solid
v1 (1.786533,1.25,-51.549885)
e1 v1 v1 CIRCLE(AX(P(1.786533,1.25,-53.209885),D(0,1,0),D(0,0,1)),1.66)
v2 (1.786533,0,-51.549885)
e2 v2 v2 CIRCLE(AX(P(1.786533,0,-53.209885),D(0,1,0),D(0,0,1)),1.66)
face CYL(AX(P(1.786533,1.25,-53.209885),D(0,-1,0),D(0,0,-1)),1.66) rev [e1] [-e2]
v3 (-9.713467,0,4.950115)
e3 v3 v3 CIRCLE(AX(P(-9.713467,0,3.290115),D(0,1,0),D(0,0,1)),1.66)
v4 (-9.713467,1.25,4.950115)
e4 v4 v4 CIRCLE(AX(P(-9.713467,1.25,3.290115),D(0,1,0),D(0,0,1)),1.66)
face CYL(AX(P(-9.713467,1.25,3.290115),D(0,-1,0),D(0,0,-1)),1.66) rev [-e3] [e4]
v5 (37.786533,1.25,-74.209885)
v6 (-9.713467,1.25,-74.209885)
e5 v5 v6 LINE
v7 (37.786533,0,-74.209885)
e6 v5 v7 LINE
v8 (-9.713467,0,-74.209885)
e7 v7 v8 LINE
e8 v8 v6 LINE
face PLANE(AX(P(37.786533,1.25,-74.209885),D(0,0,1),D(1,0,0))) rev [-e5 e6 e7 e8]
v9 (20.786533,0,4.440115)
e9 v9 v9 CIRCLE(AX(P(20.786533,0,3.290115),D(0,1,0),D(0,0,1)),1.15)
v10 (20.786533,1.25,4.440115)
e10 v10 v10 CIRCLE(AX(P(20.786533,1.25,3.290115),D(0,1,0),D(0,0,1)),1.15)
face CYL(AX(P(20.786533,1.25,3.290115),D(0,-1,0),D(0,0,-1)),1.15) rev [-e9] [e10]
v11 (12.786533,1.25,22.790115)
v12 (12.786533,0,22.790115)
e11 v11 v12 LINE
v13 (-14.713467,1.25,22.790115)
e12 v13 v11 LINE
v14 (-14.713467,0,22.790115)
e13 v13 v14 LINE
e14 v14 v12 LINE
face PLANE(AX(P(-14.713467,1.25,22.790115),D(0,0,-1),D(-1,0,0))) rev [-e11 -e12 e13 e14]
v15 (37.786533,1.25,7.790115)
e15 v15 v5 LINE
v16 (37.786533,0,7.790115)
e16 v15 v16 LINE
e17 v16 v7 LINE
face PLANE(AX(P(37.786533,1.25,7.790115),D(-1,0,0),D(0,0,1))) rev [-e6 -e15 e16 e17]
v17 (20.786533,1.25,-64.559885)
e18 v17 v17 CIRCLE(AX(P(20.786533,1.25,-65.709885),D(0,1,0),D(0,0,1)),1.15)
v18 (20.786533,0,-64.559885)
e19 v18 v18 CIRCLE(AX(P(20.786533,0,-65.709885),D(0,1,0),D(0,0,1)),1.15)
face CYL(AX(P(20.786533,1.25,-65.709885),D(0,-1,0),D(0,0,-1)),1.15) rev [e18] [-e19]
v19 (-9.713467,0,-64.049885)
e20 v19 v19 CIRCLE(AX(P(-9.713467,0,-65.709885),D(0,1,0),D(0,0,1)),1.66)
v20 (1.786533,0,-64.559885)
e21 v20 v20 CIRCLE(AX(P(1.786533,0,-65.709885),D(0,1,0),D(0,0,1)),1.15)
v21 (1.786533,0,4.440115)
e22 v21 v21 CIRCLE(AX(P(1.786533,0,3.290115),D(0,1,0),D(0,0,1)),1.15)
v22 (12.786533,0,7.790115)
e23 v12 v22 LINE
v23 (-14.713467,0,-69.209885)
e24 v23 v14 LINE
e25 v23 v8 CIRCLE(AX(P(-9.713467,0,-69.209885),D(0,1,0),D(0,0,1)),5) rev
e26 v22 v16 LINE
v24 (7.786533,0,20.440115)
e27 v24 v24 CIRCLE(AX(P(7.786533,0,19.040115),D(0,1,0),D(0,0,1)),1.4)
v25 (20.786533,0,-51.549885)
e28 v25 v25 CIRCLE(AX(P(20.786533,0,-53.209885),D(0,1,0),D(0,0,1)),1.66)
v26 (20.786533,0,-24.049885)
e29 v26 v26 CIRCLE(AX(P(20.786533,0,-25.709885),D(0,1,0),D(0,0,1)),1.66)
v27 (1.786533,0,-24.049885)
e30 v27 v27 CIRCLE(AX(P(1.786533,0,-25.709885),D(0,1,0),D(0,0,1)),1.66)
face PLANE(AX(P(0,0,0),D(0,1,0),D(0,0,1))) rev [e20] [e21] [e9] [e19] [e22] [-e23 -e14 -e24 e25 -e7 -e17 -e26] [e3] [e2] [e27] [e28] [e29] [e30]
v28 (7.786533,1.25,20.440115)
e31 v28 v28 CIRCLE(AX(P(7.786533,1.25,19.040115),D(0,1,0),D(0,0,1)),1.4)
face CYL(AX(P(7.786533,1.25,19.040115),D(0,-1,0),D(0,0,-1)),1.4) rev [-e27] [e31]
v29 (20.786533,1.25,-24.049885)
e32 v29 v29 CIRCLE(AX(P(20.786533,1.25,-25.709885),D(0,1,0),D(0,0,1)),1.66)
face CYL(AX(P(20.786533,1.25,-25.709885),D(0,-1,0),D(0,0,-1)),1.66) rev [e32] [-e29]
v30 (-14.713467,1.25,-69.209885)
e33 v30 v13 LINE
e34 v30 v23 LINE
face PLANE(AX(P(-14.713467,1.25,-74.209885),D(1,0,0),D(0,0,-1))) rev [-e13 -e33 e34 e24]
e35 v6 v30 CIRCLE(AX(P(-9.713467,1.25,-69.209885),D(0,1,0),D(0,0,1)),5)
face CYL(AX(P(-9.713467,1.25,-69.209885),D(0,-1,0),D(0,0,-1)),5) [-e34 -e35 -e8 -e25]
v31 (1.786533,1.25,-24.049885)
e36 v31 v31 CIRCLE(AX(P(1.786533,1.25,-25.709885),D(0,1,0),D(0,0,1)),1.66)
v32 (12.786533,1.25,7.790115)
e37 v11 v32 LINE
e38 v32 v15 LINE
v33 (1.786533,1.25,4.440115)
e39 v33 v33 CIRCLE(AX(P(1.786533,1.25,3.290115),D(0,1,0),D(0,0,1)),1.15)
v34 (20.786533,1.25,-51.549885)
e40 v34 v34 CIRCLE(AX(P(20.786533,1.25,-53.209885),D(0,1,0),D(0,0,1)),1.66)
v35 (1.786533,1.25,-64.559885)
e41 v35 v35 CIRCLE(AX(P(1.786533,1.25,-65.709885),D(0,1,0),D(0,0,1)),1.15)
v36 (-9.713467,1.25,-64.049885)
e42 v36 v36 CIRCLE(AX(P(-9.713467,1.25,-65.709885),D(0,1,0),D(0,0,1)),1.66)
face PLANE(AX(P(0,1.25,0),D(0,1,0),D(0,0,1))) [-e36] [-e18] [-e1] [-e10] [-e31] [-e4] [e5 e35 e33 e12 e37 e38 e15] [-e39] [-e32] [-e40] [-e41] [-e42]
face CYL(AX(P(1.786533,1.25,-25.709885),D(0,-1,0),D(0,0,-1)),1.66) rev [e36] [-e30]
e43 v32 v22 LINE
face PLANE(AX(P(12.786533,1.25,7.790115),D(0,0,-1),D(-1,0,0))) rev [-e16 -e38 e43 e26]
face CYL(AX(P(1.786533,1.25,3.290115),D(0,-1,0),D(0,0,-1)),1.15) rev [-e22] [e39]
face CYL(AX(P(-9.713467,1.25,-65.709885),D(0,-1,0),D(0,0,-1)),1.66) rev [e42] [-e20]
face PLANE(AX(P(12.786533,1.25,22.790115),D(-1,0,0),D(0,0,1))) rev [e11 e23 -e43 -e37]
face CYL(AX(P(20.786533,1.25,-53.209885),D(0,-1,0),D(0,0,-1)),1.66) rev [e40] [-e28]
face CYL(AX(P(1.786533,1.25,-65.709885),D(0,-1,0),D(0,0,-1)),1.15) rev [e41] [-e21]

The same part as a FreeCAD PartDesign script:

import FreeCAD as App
import Part
import Sketcher

V = App.Vector
Q = App.Units.Quantity


def edges_at(feature, points):
    """Names of the edges that pass closest to the given points."""
    edges = feature.Shape.Edges
    near = lambda p: min(range(len(edges)), key=lambda i: edges[i].distToShape(Part.Vertex(*p))[0])
    return sorted({f"Edge{near(p) + 1}" for p in points})


def add_polygon(sketch, points):
    """Adds a closed chain of lines whose ends are joined by coincident constraints."""
    first, n = sketch.GeometryCount, len(points)
    for a, b in zip(points, points[1:] + points[:1]):
        sketch.addGeometry(Part.LineSegment(App.Vector(*a, 0), App.Vector(*b, 0)), False)
    for i in range(n):
        sketch.addConstraint(Sketcher.Constraint("Coincident", first + i, 2, first + (i + 1) % n, 1))

doc = App.newDocument("Part")
body = doc.addObject("PartDesign::Body", "Body")

# Sketch on XZ plane
sketch1 = doc.addObject("Sketcher::SketchObject", "Sketch")
body.addObject(sketch1)
sketch1.AttachmentSupport = (doc.XZ_Plane, [""])
sketch1.MapMode = "FlatFace"
add_polygon(sketch1, [(-14.7, -74.2), (-14.7, 22.8), (12.8, 22.8), (12.8, 7.8), (37.8, 7.8), (37.8, -74.2)])  # lines 0-5
sketch1.addGeometry(Part.Circle(V(-9.7, 3.3, 0), V(0, 0, 1), 1.7), False)  # 6
sketch1.addGeometry(Part.Circle(V(1.8, 3.3, 0), V(0, 0, 1), 1.1), False)  # 7
sketch1.addGeometry(Part.Circle(V(7.8, 19, 0), V(0, 0, 1), 1.4), False)  # 8
sketch1.addGeometry(Part.Circle(V(20.8, 3.3, 0), V(0, 0, 1), 1.1), False)  # 9
sketch1.addGeometry(Part.Circle(V(1.8, -25.7, 0), V(0, 0, 1), 1.7), False)  # 10
sketch1.addGeometry(Part.Circle(V(-9.7, -65.7, 0), V(0, 0, 1), 1.7), False)  # 11
sketch1.addGeometry(Part.Circle(V(1.8, -53.2, 0), V(0, 0, 1), 1.7), False)  # 12
sketch1.addGeometry(Part.Circle(V(1.8, -65.7, 0), V(0, 0, 1), 1.1), False)  # 13
sketch1.addGeometry(Part.Circle(V(20.8, -25.7, 0), V(0, 0, 1), 1.7), False)  # 14
sketch1.addGeometry(Part.Circle(V(20.8, -53.2, 0), V(0, 0, 1), 1.7), False)  # 15
sketch1.addGeometry(Part.Circle(V(20.8, -65.7, 0), V(0, 0, 1), 1.1), False)  # 16
sketch1.addConstraint([
    Sketcher.Constraint("Vertical", 0),
    Sketcher.Constraint("Horizontal", 1),
    Sketcher.Constraint("Vertical", 2),
    Sketcher.Constraint("Horizontal", 3),
    Sketcher.Constraint("Vertical", 4),
    Sketcher.Constraint("Horizontal", 5),
    Sketcher.Constraint("Equal", 7, 9),
    Sketcher.Constraint("Equal", 6, 10),
    Sketcher.Constraint("Equal", 10, 11),
    Sketcher.Constraint("Equal", 11, 12),
    Sketcher.Constraint("Equal", 9, 13),
    Sketcher.Constraint("Equal", 12, 14),
    Sketcher.Constraint("Equal", 14, 15),
    Sketcher.Constraint("Equal", 13, 16),
    Sketcher.Constraint("Horizontal", 6, 3, 7, 3),
    Sketcher.Constraint("Horizontal", 7, 3, 9, 3),
    Sketcher.Constraint("Horizontal", 11, 3, 13, 3),
    Sketcher.Constraint("Horizontal", 10, 3, 14, 3),
    Sketcher.Constraint("Horizontal", 12, 3, 15, 3),
    Sketcher.Constraint("Horizontal", 13, 3, 16, 3),
    Sketcher.Constraint("Vertical", 7, 3, 10, 3),
    Sketcher.Constraint("Vertical", 6, 3, 11, 3),
    Sketcher.Constraint("Vertical", 10, 3, 12, 3),
    Sketcher.Constraint("Vertical", 12, 3, 13, 3),
    Sketcher.Constraint("Vertical", 9, 3, 14, 3),
    Sketcher.Constraint("Vertical", 14, 3, 15, 3),
    Sketcher.Constraint("Vertical", 15, 3, 16, 3),
    Sketcher.Constraint("Diameter", 7, Q("2.3 mm")),
    Sketcher.Constraint("Diameter", 8, Q("2.8 mm")),
    Sketcher.Constraint("Diameter", 6, Q("3.32 mm")),
    Sketcher.Constraint("DistanceX", 3, 1, 3, 2, Q("25 mm")),
    Sketcher.Constraint("DistanceY", 0, 1, 0, 2, Q("97 mm")),
    Sketcher.Constraint("DistanceY", 2, 2, 2, 1, Q("15 mm")),
    Sketcher.Constraint("DistanceX", 1, 1, 1, 2, Q("27.5 mm")),
    Sketcher.Constraint("DistanceX", 7, 3, 8, 3, Q("6 mm")),
    Sketcher.Constraint("DistanceX", 7, 3, 9, 3, Q("19 mm")),
    Sketcher.Constraint("DistanceY", 10, 3, 7, 3, Q("29 mm")),
    Sketcher.Constraint("DistanceY", 11, 3, 10, 3, Q("40 mm")),
    Sketcher.Constraint("DistanceX", 0, 2, 6, 3, Q("5 mm")),
    Sketcher.Constraint("DistanceX", 8, 3, 1, 2, Q("5 mm")),
    Sketcher.Constraint("DistanceY", 4, 2, 15, 3, Q("21 mm")),
    Sketcher.Constraint("DistanceY", 11, 3, 12, 3, Q("12.5 mm")),
    Sketcher.Constraint("DistanceY", 7, 3, 8, 3, Q("15.75 mm")),
    Sketcher.Constraint("DistanceX", 6, 3, -1, 1, Q("9.713467 mm")),
    Sketcher.Constraint("DistanceY", -1, 1, 6, 3, Q("3.290115 mm")),
])
pad1 = doc.addObject("PartDesign::Pad", "Pad")
body.addObject(pad1)
pad1.Profile = sketch1
pad1.Length = 1.25
pad1.Reversed = True
doc.recompute()

fillet = doc.addObject("PartDesign::Fillet", "Fillet")
body.addObject(fillet)
fillet.Base = (pad1, edges_at(pad1, [(-14.713, 0.625, -74.21)]))
fillet.Radius = 5

doc.recompute()
